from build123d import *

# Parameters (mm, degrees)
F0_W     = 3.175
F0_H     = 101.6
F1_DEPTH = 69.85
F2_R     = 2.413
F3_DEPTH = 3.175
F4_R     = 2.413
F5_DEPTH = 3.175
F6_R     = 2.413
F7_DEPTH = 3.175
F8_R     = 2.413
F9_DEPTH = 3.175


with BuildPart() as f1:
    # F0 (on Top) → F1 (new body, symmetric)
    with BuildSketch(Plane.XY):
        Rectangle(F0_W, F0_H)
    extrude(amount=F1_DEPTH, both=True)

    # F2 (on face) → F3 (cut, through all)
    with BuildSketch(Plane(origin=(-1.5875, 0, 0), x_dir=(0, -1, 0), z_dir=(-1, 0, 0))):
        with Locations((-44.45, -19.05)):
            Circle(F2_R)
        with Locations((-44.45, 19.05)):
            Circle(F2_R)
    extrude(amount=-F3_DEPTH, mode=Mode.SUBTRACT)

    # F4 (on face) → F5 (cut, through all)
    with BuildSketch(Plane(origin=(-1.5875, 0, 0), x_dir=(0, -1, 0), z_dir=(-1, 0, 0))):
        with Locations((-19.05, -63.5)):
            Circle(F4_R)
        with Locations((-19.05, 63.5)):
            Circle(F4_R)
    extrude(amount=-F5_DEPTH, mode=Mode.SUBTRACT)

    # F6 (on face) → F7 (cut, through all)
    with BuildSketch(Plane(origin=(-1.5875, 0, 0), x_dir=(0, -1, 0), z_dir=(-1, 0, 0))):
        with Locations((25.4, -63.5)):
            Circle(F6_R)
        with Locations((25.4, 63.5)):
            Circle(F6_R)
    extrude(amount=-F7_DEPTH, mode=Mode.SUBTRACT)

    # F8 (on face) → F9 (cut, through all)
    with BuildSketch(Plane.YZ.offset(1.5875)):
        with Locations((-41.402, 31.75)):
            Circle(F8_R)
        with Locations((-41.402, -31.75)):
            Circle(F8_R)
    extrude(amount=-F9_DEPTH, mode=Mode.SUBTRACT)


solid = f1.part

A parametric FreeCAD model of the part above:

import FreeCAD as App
import Part
import Sketcher
Q = App.Units.Quantity

doc = App.newDocument("Part")
body = doc.addObject("PartDesign::Body", "Body")

sketch1 = body.newObject("Sketcher::SketchObject", "Sketch")
sketch1.AttachmentSupport = (doc.getObject("XY_Plane"), [""])
sketch1.MapMode = "FlatFace"
sketch1.addGeometry(Part.LineSegment(App.Vector(-1.6, 50.8, 0), App.Vector(-1.6, -50.8, 0)), False)
sketch1.addGeometry(Part.LineSegment(App.Vector(-1.6, -50.8, 0), App.Vector(1.6, -50.8, 0)), False)
sketch1.addGeometry(Part.LineSegment(App.Vector(1.6, -50.8, 0), App.Vector(1.6, 50.8, 0)), False)
sketch1.addGeometry(Part.LineSegment(App.Vector(1.6, 50.8, 0), App.Vector(-1.6, 50.8, 0)), False)
sketch1.addConstraint(Sketcher.Constraint("Coincident", 0, 2, 1, 1))
sketch1.addConstraint(Sketcher.Constraint("Coincident", 1, 2, 2, 1))
sketch1.addConstraint(Sketcher.Constraint("Coincident", 2, 2, 3, 1))
sketch1.addConstraint(Sketcher.Constraint("Coincident", 3, 2, 0, 1))
sketch1.addConstraint(Sketcher.Constraint("Vertical", 0))
sketch1.addConstraint(Sketcher.Constraint("Horizontal", 1))
sketch1.addConstraint(Sketcher.Constraint("Vertical", 2))
sketch1.addConstraint(Sketcher.Constraint("Horizontal", 3))
sketch1.addConstraint(Sketcher.Constraint("Symmetric", 0, 2, 2, 2, -1, 1))
sketch1.addConstraint(Sketcher.Constraint("DistanceY", 0, 2, 0, 1, Q("4 in")))
sketch1.addConstraint(Sketcher.Constraint("DistanceX", 1, 1, 1, 2, Q("0.125 in")))
pad1 = body.newObject("PartDesign::Pad", "Pad")
pad1.Profile = sketch1
pad1.Length = Q("5.5 in")
pad1.Midplane = True

sketch2 = body.newObject("Sketcher::SketchObject", "Sketch001")
sketch2.AttachmentSupport = (doc.getObject("YZ_Plane"), [""])
sketch2.MapMode = "FlatFace"
sketch2.AttachmentOffset = App.Placement(App.Vector(0, 0, -0.0625 * 25.4), App.Rotation())
sketch2.addGeometry(Part.Circle(App.Vector(44.5, -19.1, 0), App.Vector(0, 0, 1), 2.4), False)
sketch2.addGeometry(Part.Circle(App.Vector(44.5, 19.1, 0), App.Vector(0, 0, 1), 2.4), False)
sketch2.addConstraint(Sketcher.Constraint("Equal", 0, 1))
sketch2.addConstraint(Sketcher.Constraint("Symmetric", 0, 3, 1, 3, -1))
sketch2.addConstraint(Sketcher.Constraint("Diameter", 0, Q("0.19 in")))
sketch2.addConstraint(Sketcher.Constraint("DistanceY", 0, 3, 1, 3, Q("1.5 in")))
sketch2.addConstraint(Sketcher.Constraint("DistanceX", -1, 1, 0, 3, Q("1.75 in")))
pocket1 = body.newObject("PartDesign::Pocket", "Pocket")
pocket1.Profile = sketch2
pocket1.Type = "ThroughAll"
pocket1.Reversed = True

sketch3 = body.newObject("Sketcher::SketchObject", "Sketch002")
sketch3.AttachmentSupport = (doc.getObject("YZ_Plane"), [""])
sketch3.MapMode = "FlatFace"
sketch3.AttachmentOffset = App.Placement(App.Vector(0, 0, -0.0625 * 25.4), App.Rotation())
sketch3.addGeometry(Part.Circle(App.Vector(19.1, -63.5, 0), App.Vector(0, 0, 1), 2.4), False)
sketch3.addGeometry(Part.Circle(App.Vector(19.1, 63.5, 0), App.Vector(0, 0, 1), 2.4), False)
sketch3.addConstraint(Sketcher.Constraint("Equal", 0, 1))
sketch3.addConstraint(Sketcher.Constraint("Symmetric", 0, 3, 1, 3, -1))
sketch3.addConstraint(Sketcher.Constraint("Diameter", 0, Q("0.19 in")))
sketch3.addConstraint(Sketcher.Constraint("DistanceY", 0, 3, 1, 3, Q("5 in")))
sketch3.addConstraint(Sketcher.Constraint("DistanceX", -1, 1, 0, 3, Q("0.75 in")))
pocket2 = body.newObject("PartDesign::Pocket", "Pocket001")
pocket2.Profile = sketch3
pocket2.Type = "ThroughAll"
pocket2.Reversed = True

sketch4 = body.newObject("Sketcher::SketchObject", "Sketch003")
sketch4.AttachmentSupport = (doc.getObject("YZ_Plane"), [""])
sketch4.MapMode = "FlatFace"
sketch4.AttachmentOffset = App.Placement(App.Vector(0, 0, -0.0625 * 25.4), App.Rotation())
sketch4.addGeometry(Part.Circle(App.Vector(-25.4, -63.5, 0), App.Vector(0, 0, 1), 2.4), False)
sketch4.addGeometry(Part.Circle(App.Vector(-25.4, 63.5, 0), App.Vector(0, 0, 1), 2.4), False)
sketch4.addConstraint(Sketcher.Constraint("Equal", 0, 1))
sketch4.addConstraint(Sketcher.Constraint("Symmetric", 0, 3, 1, 3, -1))
sketch4.addConstraint(Sketcher.Constraint("Diameter", 0, Q("0.19 in")))
sketch4.addConstraint(Sketcher.Constraint("DistanceX", 0, 3, -1, 1, Q("1 in")))
sketch4.addConstraint(Sketcher.Constraint("DistanceY", 0, 3, 1, 3, Q("5 in")))
pocket3 = body.newObject("PartDesign::Pocket", "Pocket002")
pocket3.Profile = sketch4
pocket3.Type = "ThroughAll"
pocket3.Reversed = True

sketch5 = body.newObject("Sketcher::SketchObject", "Sketch004")
sketch5.AttachmentSupport = (doc.getObject("YZ_Plane"), [""])
sketch5.MapMode = "FlatFace"
sketch5.AttachmentOffset = App.Placement(App.Vector(0, 0, 0.0625 * 25.4), App.Rotation())
sketch5.addGeometry(Part.Circle(App.Vector(-41.4, 31.8, 0), App.Vector(0, 0, 1), 2.4), False)
sketch5.addGeometry(Part.Circle(App.Vector(-41.4, -31.8, 0), App.Vector(0, 0, 1), 2.4), False)
sketch5.addConstraint(Sketcher.Constraint("Equal", 0, 1))
sketch5.addConstraint(Sketcher.Constraint("Symmetric", 0, 3, 1, 3, -1))
sketch5.addConstraint(Sketcher.Constraint("Diameter", 0, Q("0.19 in")))
sketch5.addConstraint(Sketcher.Constraint("DistanceY", 1, 3, 0, 3, Q("2.5 in")))
sketch5.addConstraint(Sketcher.Constraint("DistanceX", 0, 3, -1, 1, Q("1.63 in")))
pocket4 = body.newObject("PartDesign::Pocket", "Pocket003")
pocket4.Profile = sketch5
pocket4.Type = "ThroughAll"

doc.recompute()
